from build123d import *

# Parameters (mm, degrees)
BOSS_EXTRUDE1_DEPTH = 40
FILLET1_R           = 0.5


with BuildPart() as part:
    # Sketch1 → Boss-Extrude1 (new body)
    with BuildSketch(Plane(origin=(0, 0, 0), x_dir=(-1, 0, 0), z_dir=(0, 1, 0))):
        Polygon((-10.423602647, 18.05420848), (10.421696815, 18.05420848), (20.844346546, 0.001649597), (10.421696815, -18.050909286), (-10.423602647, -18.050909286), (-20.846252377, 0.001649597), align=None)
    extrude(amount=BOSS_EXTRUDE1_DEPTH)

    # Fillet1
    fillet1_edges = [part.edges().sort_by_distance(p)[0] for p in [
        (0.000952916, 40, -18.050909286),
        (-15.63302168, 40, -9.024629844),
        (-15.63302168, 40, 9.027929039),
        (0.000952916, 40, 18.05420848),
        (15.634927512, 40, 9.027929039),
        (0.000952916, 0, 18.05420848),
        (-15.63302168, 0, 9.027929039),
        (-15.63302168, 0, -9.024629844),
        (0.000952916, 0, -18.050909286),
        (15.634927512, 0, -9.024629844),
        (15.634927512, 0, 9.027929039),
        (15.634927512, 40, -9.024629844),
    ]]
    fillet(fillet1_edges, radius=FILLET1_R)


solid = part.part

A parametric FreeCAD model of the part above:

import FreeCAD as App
import Part
import Sketcher
from FreeCAD import Vector
Q = App.Units.Quantity


def edges_at(feature, points):
    """Names of the edges that pass closest to the given points."""
    edges = feature.Shape.Edges
    near = lambda p: min(range(len(edges)), key=lambda i: edges[i].distToShape(Part.Vertex(*p))[0])
    return sorted({f"Edge{near(p) + 1}" for p in points})


def add_polygon(sketch, points):
    """Adds a closed chain of lines whose ends are joined by coincident constraints."""
    first, n = sketch.GeometryCount, len(points)
    for a, b in zip(points, points[1:] + points[:1]):
        sketch.addGeometry(Part.LineSegment(App.Vector(*a, 0), App.Vector(*b, 0)), False)
    for i in range(n):
        sketch.addConstraint(Sketcher.Constraint("Coincident", first + i, 2, first + (i + 1) % n, 1))

doc = App.newDocument("Part")
body = doc.addObject("PartDesign::Body", "Body")

# Sketch on XZ plane
sketch1 = body.newObject("Sketcher::SketchObject", "Sketch")
sketch1.AttachmentSupport = (doc.getObject("XZ_Plane"), [""])
sketch1.MapMode = "FlatFace"
add_polygon(sketch1, [(-10, 18), (10, 18), (21, 0), (10, -18), (-10, -18), (-21, 0)])  # lines 0-5
sketch1.addConstraint([
    Sketcher.Constraint("Horizontal", 0),
    Sketcher.Constraint("Horizontal", 3),
    Sketcher.Constraint("Parallel", 1, 4),
    Sketcher.Constraint("Parallel", 2, 5),
    Sketcher.Constraint("Horizontal", 1, 2, 4, 2),
    Sketcher.Constraint("Vertical", 0, 2, 2, 2),
    Sketcher.Constraint("Vertical", 3, 2, 5, 2),
    Sketcher.Constraint("Angle", 1, Q("-60 deg")),
    Sketcher.Constraint("DistanceX", 0, 1, 0, 2, 20.845299),
    Sketcher.Constraint("Distance", 1, 20.845299),
    Sketcher.Constraint("DistanceY", -1, 1, 0, 2, 18.054208),
    Sketcher.Constraint("DistanceX", -1, 1, 0, 2, 10.423603),
])
pad1 = body.newObject("PartDesign::Pad", "Pad")
pad1.Profile = sketch1
pad1.Length = 40
pad1.Reversed = True
doc.recompute()

fillet = body.newObject("PartDesign::Fillet", "Fillet")
fillet.Base = (pad1, edges_at(pad1, [
    (0.001, 40, -18.051),
    (-15.633, 40, -9.025),
    (-15.633, 40, 9.028),
    (0.001, 40, 18.054),
    (15.635, 40, 9.028),
    (0.001, 0, 18.054),
    (-15.633, 0, 9.028),
    (-15.633, 0, -9.025),
    (0.001, 0, -18.051),
    (15.635, 0, -9.025),
    (15.635, 0, 9.028),
    (15.635, 40, -9.025),
]))
fillet.Radius = 0.5

doc.recompute()
